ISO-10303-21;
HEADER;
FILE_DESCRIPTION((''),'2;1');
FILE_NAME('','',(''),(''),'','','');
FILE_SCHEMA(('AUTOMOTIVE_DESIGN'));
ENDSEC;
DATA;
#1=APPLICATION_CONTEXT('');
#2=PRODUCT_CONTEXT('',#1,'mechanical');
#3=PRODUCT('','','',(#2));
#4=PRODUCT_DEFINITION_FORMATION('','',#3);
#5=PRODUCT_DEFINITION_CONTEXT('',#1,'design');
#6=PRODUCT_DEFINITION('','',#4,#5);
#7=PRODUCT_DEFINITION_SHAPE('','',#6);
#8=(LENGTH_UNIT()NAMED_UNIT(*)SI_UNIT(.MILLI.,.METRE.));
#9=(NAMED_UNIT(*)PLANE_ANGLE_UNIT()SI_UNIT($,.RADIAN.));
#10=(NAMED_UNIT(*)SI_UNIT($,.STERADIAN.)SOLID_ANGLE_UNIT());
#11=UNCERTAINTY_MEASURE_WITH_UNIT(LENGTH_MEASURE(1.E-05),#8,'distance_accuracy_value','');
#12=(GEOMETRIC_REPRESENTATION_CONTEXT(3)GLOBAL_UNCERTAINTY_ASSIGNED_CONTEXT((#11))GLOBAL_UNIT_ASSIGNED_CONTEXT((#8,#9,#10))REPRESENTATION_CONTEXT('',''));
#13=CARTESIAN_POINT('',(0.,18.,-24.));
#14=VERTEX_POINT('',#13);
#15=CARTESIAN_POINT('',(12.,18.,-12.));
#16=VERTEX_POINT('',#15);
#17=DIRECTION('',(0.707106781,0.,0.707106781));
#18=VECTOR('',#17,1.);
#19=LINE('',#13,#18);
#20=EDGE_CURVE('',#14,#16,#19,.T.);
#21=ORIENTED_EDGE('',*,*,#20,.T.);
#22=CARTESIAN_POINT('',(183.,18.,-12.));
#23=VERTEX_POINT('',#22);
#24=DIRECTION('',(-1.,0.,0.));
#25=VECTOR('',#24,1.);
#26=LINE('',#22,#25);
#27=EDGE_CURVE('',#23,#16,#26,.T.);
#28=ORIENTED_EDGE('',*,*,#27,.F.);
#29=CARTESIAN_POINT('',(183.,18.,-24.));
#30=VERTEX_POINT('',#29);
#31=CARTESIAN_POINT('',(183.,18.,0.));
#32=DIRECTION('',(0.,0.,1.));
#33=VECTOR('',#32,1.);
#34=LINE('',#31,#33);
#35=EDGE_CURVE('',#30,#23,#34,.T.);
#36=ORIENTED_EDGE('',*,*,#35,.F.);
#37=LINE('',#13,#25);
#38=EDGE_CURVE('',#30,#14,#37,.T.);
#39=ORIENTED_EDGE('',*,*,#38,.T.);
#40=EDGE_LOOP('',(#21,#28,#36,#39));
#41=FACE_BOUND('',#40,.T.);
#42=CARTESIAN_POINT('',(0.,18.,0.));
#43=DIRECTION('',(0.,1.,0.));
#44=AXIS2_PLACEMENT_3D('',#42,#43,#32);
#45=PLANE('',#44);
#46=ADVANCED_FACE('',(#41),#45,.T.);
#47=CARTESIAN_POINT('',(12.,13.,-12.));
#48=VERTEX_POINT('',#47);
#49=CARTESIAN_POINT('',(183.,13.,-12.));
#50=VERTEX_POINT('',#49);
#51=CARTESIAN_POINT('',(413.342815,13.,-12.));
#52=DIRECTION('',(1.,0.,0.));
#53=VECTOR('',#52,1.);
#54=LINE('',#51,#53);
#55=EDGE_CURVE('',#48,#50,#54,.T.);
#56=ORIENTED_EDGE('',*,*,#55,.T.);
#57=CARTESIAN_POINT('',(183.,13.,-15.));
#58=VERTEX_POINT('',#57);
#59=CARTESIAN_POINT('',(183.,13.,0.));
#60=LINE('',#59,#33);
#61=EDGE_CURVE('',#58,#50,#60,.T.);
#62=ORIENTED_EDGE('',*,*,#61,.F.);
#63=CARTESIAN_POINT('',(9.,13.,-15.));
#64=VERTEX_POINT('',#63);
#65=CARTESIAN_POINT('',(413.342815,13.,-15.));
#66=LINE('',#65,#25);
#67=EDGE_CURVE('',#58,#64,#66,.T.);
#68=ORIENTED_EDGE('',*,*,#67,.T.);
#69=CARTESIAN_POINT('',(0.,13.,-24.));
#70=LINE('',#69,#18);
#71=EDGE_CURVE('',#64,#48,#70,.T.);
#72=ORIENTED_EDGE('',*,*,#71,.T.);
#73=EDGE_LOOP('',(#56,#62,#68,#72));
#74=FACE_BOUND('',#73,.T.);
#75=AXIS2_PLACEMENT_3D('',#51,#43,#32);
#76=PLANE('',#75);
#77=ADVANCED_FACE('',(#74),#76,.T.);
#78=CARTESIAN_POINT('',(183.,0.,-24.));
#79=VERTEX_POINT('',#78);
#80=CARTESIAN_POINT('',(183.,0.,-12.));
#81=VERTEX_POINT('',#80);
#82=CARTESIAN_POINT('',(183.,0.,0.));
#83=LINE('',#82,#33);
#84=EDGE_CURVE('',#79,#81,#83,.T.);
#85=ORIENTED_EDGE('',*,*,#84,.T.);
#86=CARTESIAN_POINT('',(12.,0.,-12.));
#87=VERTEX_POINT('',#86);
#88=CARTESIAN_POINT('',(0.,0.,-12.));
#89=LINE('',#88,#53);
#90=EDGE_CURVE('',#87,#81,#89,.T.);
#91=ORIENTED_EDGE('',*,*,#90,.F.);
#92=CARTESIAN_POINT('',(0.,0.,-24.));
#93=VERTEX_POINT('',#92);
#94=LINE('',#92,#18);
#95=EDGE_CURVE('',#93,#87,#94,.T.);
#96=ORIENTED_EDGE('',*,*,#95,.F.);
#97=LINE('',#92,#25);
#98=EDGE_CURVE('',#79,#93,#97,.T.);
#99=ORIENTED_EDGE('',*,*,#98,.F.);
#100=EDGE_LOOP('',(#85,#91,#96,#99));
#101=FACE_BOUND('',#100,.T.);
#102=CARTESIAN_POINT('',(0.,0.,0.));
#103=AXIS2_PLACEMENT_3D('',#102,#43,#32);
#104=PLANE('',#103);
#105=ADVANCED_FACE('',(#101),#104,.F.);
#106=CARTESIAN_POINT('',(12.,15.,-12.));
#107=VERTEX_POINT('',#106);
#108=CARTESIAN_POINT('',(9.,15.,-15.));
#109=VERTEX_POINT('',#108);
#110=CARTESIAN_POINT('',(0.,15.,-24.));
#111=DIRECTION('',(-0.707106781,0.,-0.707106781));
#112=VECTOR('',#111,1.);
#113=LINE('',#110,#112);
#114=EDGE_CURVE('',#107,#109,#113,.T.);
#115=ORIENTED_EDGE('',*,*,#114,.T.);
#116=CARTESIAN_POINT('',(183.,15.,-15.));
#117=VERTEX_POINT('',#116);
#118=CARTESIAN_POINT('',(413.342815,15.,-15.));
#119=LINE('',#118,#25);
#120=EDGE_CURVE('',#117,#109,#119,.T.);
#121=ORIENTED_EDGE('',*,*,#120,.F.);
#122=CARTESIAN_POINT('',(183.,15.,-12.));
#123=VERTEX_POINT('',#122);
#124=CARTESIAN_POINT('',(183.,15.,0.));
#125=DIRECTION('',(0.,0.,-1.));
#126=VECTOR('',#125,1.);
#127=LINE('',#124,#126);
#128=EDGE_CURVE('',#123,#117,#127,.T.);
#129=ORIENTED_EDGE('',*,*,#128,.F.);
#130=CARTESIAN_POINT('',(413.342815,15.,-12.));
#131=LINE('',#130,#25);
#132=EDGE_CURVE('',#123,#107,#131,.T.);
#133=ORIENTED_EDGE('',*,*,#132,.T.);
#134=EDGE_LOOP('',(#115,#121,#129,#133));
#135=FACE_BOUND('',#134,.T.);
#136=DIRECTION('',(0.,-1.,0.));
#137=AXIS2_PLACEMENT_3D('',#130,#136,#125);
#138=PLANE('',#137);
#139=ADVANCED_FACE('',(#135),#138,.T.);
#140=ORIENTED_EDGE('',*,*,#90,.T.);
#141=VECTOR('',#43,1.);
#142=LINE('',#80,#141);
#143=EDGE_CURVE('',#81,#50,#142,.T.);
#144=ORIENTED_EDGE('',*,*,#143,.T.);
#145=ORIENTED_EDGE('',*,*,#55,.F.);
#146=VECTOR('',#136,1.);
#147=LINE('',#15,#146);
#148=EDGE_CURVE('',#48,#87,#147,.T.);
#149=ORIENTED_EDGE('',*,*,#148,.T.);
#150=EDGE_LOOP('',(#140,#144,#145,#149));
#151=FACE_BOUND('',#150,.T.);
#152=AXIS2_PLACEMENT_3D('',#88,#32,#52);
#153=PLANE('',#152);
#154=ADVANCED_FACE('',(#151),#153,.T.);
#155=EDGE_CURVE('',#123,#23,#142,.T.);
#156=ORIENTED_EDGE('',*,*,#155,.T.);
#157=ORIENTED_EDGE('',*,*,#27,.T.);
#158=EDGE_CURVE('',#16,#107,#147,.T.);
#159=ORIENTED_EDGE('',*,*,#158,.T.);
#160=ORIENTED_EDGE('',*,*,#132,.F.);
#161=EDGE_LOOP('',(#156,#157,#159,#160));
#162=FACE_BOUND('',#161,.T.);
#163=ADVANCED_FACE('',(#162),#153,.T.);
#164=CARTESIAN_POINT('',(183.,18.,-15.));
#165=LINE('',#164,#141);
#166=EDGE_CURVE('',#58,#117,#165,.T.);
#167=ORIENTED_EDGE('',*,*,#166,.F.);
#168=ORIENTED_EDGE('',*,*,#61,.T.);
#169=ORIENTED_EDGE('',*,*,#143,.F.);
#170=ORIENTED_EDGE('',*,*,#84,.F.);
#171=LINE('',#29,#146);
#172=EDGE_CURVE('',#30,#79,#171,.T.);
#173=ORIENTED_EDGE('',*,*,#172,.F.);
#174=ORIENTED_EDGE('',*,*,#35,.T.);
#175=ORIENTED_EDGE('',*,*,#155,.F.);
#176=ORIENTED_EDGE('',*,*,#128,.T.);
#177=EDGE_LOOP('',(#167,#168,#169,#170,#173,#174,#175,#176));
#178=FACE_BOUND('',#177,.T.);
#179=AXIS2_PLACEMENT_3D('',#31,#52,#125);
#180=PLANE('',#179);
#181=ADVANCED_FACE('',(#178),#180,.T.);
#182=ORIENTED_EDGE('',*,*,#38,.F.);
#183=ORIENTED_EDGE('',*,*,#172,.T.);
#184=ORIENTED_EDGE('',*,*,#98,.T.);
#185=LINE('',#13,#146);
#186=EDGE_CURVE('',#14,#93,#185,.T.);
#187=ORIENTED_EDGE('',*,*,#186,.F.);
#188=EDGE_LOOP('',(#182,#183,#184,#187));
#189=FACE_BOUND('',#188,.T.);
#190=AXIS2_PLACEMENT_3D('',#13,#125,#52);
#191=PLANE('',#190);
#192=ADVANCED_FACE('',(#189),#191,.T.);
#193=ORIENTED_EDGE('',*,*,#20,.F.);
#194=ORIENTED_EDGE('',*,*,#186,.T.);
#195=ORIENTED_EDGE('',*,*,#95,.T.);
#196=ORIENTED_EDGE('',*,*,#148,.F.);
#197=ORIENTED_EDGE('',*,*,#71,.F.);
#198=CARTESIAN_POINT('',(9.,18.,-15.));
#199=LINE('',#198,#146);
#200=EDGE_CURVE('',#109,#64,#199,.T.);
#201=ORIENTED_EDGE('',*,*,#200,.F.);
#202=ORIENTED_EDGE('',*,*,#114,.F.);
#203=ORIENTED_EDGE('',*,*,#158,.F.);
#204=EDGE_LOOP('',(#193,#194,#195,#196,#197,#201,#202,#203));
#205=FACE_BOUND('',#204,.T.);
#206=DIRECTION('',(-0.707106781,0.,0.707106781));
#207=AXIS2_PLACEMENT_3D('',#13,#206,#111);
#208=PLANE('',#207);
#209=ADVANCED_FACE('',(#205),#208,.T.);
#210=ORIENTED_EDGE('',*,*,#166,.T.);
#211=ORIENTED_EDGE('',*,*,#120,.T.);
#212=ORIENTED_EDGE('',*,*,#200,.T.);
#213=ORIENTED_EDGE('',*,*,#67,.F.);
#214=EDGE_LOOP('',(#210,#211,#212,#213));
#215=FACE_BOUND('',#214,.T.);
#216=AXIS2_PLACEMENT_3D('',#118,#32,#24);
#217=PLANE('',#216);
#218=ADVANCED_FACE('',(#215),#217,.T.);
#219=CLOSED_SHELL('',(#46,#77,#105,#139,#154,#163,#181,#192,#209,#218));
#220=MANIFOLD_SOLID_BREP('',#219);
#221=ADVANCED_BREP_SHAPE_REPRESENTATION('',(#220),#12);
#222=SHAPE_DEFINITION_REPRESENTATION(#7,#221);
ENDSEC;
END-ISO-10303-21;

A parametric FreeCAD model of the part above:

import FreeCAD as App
import Part
import Sketcher
Q = App.Units.Quantity

doc = App.newDocument("Part")
params = doc.addObject("Spreadsheet::Sheet", "Params")
for row, (alias, value) in enumerate([
    ("sketch1_width", "183 mm"),
    ("sketch1_width2", "171 mm"),
    ("sketch1_height", "12 mm"),
    ("pad1_length", "18 mm"),
    ("sketch2_width", "2 mm"),
    ("sketch2_height", "3 mm"),
    ("pocket1_length", "370.548504 mm"),
    ("sketch3_width", "183 mm"),
    ("sketch3_height", "18 mm"),
    ("pocket2_length", "12 mm"),
], start=1):
    params.set(f"A{row}", alias)
    params.set(f"B{row}", "=" + value)
    params.setAlias(f"B{row}", alias)

body = doc.addObject("PartDesign::Body", "Body")

# Sketch on XZ plane
sketch1 = body.newObject("Sketcher::SketchObject", "Sketch")
sketch1.AttachmentSupport = (doc.getObject("XZ_Plane"), [""])
sketch1.MapMode = "FlatFace"
sketch1.addGeometry([
    Part.LineSegment(App.Vector(0, 0, 0), App.Vector(183, 0, 0)),
    Part.LineSegment(App.Vector(183, 0, 0), App.Vector(183, -12, 0)),
    Part.LineSegment(App.Vector(183, -12, 0), App.Vector(12, -12, 0)),
    Part.LineSegment(App.Vector(12, -12, 0), App.Vector(0, 0, 0)),
], False)
sketch1.addConstraint([
    Sketcher.Constraint("Coincident", 0, 2, 1, 1),
    Sketcher.Constraint("Coincident", 1, 2, 2, 1),
    Sketcher.Constraint("Coincident", 2, 2, 3, 1),
    Sketcher.Constraint("Coincident", 3, 2, 0, 1),
    Sketcher.Constraint("Horizontal", 0),
    Sketcher.Constraint("Vertical", 1),
    Sketcher.Constraint("Horizontal", 2),
    Sketcher.Constraint("Coincident", 3, 2, -1, 1),
    Sketcher.Constraint("DistanceX", 0, 1, 0, 2, Q("183 mm")),
    Sketcher.Constraint("DistanceX", 2, 2, 2, 1, Q("171 mm")),
    Sketcher.Constraint("DistanceY", 1, 2, 1, 1, Q("12 mm")),
])
sketch1.setExpression("Constraints[8]", "Params.sketch1_width")
sketch1.setExpression("Constraints[9]", "Params.sketch1_width2")
sketch1.setExpression("Constraints[10]", "Params.sketch1_height")
pad1 = body.newObject("PartDesign::Pad", "Pad")
pad1.Profile = sketch1
pad1.setExpression("Length", "Params.pad1_length")
pad1.Reversed = True

# Sketch on YZ plane
sketch2 = body.newObject("Sketcher::SketchObject", "Sketch001")
sketch2.AttachmentSupport = (doc.getObject("YZ_Plane"), [""])
sketch2.MapMode = "FlatFace"
sketch2.AttachmentOffset = App.Placement(App.Vector(0, 0, 183), App.Rotation())
sketch2.addGeometry([
    Part.LineSegment(App.Vector(15, -9, 0), App.Vector(13, -9, 0)),
    Part.LineSegment(App.Vector(13, -9, 0), App.Vector(13, -12, 0)),
    Part.LineSegment(App.Vector(13, -12, 0), App.Vector(15, -12, 0)),
    Part.LineSegment(App.Vector(15, -12, 0), App.Vector(15, -9, 0)),
], False)
sketch2.addConstraint([
    Sketcher.Constraint("Coincident", 0, 2, 1, 1),
    Sketcher.Constraint("Coincident", 1, 2, 2, 1),
    Sketcher.Constraint("Coincident", 2, 2, 3, 1),
    Sketcher.Constraint("Coincident", 3, 2, 0, 1),
    Sketcher.Constraint("Horizontal", 0),
    Sketcher.Constraint("Vertical", 1),
    Sketcher.Constraint("Horizontal", 2),
    Sketcher.Constraint("Vertical", 3),
    Sketcher.Constraint("DistanceX", 0, 2, 0, 1, Q("2 mm")),
    Sketcher.Constraint("DistanceY", 1, 2, 1, 1, Q("3 mm")),
    Sketcher.Constraint("DistanceX", -1, 1, 0, 2, Q("13 mm")),
    Sketcher.Constraint("DistanceY", 0, 2, -1, 1, Q("9 mm")),
])
sketch2.setExpression("Constraints[8]", "Params.sketch2_width")
sketch2.setExpression("Constraints[9]", "Params.sketch2_height")
pocket1 = body.newObject("PartDesign::Pocket", "Pocket")
pocket1.Profile = sketch2
pocket1.setExpression("Length", "Params.pocket1_length")
pocket1.Midplane = True
doc.recompute()

datumplane = body.newObject("PartDesign::Plane", "DatumPlane")
datumplane.AttachmentSupport = (doc.getObject("XY_Plane"), [""])
datumplane.MapMode = "FlatFace"
datumplane.AttachmentOffset = App.Placement(App.Vector(0, 0, -12), App.Rotation())
mirrored = body.newObject("PartDesign::Mirrored", "Mirrored")
mirrored.Originals = [pad1, pocket1]
mirrored.MirrorPlane = (datumplane, [""])
body.Tip = mirrored

# Sketch on XY plane
sketch3 = body.newObject("Sketcher::SketchObject", "Sketch002")
sketch3.AttachmentSupport = (doc.getObject("XY_Plane"), [""])
sketch3.MapMode = "FlatFace"
sketch3.addGeometry([
    Part.LineSegment(App.Vector(0, 18, 0), App.Vector(0, 0, 0)),
    Part.LineSegment(App.Vector(0, 0, 0), App.Vector(183, 0, 0)),
    Part.LineSegment(App.Vector(183, 0, 0), App.Vector(183, 18, 0)),
    Part.LineSegment(App.Vector(183, 18, 0), App.Vector(0, 18, 0)),
], False)
sketch3.addConstraint([
    Sketcher.Constraint("Coincident", 0, 2, 1, 1),
    Sketcher.Constraint("Coincident", 1, 2, 2, 1),
    Sketcher.Constraint("Coincident", 2, 2, 3, 1),
    Sketcher.Constraint("Coincident", 3, 2, 0, 1),
    Sketcher.Constraint("Vertical", 0),
    Sketcher.Constraint("Horizontal", 1),
    Sketcher.Constraint("Vertical", 2),
    Sketcher.Constraint("Horizontal", 3),
    Sketcher.Constraint("Coincident", 0, 2, -1, 1),
    Sketcher.Constraint("DistanceX", 1, 1, 1, 2, Q("183 mm")),
    Sketcher.Constraint("DistanceY", 0, 2, 0, 1, Q("18 mm")),
])
sketch3.setExpression("Constraints[9]", "Params.sketch3_width")
sketch3.setExpression("Constraints[10]", "Params.sketch3_height")
pocket2 = body.newObject("PartDesign::Pocket", "Pocket001")
pocket2.Profile = sketch3
pocket2.setExpression("Length", "Params.pocket2_length")

doc.recompute()
